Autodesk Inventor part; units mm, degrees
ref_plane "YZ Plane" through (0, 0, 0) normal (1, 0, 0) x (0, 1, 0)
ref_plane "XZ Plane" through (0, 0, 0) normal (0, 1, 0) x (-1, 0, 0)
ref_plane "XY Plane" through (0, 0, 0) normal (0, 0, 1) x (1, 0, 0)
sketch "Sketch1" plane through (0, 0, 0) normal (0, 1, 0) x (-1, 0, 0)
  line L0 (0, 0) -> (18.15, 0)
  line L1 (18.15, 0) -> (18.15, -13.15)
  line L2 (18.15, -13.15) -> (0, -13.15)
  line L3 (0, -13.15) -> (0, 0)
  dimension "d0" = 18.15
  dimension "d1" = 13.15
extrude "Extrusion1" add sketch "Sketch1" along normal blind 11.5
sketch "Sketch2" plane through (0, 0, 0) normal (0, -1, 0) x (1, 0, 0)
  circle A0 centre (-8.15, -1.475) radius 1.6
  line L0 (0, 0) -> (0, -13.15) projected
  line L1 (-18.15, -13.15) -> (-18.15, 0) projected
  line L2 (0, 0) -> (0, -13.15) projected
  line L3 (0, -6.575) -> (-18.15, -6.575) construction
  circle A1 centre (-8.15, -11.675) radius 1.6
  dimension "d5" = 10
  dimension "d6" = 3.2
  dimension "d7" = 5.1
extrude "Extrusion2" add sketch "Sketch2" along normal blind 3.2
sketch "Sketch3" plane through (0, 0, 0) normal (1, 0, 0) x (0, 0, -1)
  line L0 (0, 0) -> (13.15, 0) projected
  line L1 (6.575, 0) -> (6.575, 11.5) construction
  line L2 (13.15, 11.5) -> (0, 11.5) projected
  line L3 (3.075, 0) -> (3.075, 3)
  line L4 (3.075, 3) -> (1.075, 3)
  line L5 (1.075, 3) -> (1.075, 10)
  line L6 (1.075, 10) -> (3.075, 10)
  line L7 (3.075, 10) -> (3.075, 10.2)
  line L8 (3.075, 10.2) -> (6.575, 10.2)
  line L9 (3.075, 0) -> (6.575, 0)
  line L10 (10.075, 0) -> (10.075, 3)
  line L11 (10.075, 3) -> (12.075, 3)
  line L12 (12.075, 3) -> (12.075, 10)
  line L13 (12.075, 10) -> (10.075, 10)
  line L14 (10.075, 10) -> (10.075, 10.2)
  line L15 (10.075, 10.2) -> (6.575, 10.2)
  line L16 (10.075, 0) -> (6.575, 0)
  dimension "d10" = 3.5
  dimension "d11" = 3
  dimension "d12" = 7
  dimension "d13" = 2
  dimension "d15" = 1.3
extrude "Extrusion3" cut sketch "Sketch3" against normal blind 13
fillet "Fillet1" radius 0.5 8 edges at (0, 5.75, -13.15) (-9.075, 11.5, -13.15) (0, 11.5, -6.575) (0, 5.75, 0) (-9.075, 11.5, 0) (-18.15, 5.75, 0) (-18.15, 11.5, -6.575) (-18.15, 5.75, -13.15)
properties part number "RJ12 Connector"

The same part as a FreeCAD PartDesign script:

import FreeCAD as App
import Part
import Sketcher
from FreeCAD import Vector


def edges_at(feature, points):
    """Names of the edges that pass closest to the given points."""
    edges = feature.Shape.Edges
    near = lambda p: min(range(len(edges)), key=lambda i: edges[i].distToShape(Part.Vertex(*p))[0])
    return sorted({f"Edge{near(p) + 1}" for p in points})


def add_polygon(sketch, points):
    """Adds a closed chain of lines whose ends are joined by coincident constraints."""
    first, n = sketch.GeometryCount, len(points)
    for a, b in zip(points, points[1:] + points[:1]):
        sketch.addGeometry(Part.LineSegment(App.Vector(*a, 0), App.Vector(*b, 0)), False)
    for i in range(n):
        sketch.addConstraint(Sketcher.Constraint("Coincident", first + i, 2, first + (i + 1) % n, 1))

doc = App.newDocument("Part")
body = doc.addObject("PartDesign::Body", "Body")

# Sketch on XZ plane
sketch1 = body.newObject("Sketcher::SketchObject", "Sketch")
sketch1.AttachmentSupport = (doc.getObject("XZ_Plane"), [""])
sketch1.MapMode = "FlatFace"
add_polygon(sketch1, [(-18, 0), (0, 0), (0, -13), (-18, -13)])  # lines 0-3
sketch1.addConstraint([
    Sketcher.Constraint("Horizontal", 0),
    Sketcher.Constraint("Vertical", 1),
    Sketcher.Constraint("Horizontal", 2),
    Sketcher.Constraint("Vertical", 3),
    Sketcher.Constraint("Coincident", 0, 2, -1, 1),
    Sketcher.Constraint("DistanceX", 0, 1, 0, 2, 18.15),
    Sketcher.Constraint("DistanceY", 1, 2, 1, 1, 13.15),
])
pad1 = body.newObject("PartDesign::Pad", "Pad")
pad1.Profile = sketch1
pad1.Length = 11.5
pad1.Reversed = True

# Sketch on XZ plane
sketch2 = body.newObject("Sketcher::SketchObject", "Sketch001")
sketch2.AttachmentSupport = (doc.getObject("XZ_Plane"), [""])
sketch2.MapMode = "FlatFace"
sketch2.addGeometry([
    Part.Circle(Vector(-8.2, -1.5, 0), Vector(0, 0, 1), 1.6),
    Part.Circle(Vector(-8.2, -11.7, 0), Vector(0, 0, 1), 1.6),
], False)
sketch2.addConstraint([
    Sketcher.Constraint("Equal", 0, 1),
    Sketcher.Constraint("Vertical", 0, 3, 1, 3),
    Sketcher.Constraint("Diameter", 0, 3.2),
    Sketcher.Constraint("DistanceY", 1, 3, 0, 3, 10.2),
    Sketcher.Constraint("DistanceX", 0, 3, -1, 1, 8.15),
    Sketcher.Constraint("DistanceY", 0, 3, -1, 1, 1.475),
])
pad2 = body.newObject("PartDesign::Pad", "Pad001")
pad2.Profile = sketch2
pad2.Length = 3.2

# Sketch on YZ plane
sketch3 = body.newObject("Sketcher::SketchObject", "Sketch002")
sketch3.AttachmentSupport = (doc.getObject("YZ_Plane"), [""])
sketch3.MapMode = "FlatFace"
add_polygon(sketch3, [(3, -3.08), (0, -3.08), (0, -10.07), (3, -10.07), (3, -12.07), (10, -12.07), (10, -10.07), (10.2, -10.07), (10.2, -3.08), (10, -3.08), (10, -1.07), (3, -1.07)])  # lines 0-11
sketch3.addConstraint([
    Sketcher.Constraint("Horizontal", 0),
    Sketcher.Constraint("Vertical", 1),
    Sketcher.Constraint("Horizontal", 2),
    Sketcher.Constraint("Vertical", 3),
    Sketcher.Constraint("Horizontal", 4),
    Sketcher.Constraint("Vertical", 5),
    Sketcher.Constraint("Horizontal", 6),
    Sketcher.Constraint("Vertical", 7),
    Sketcher.Constraint("Horizontal", 8),
    Sketcher.Constraint("Vertical", 9),
    Sketcher.Constraint("Horizontal", 10),
    Sketcher.Constraint("Vertical", 11),
    Sketcher.Constraint("PointOnObject", 0, 2, -2),
    Sketcher.Constraint("Horizontal", 2, 2, 5, 2),
    Sketcher.Constraint("Horizontal", 0, 2, 7, 2),
    Sketcher.Constraint("Vertical", 5, 2, 8, 2),
    Sketcher.Constraint("Vertical", 3, 2, 10, 2),
    Sketcher.Constraint("Equal", 10, 1),
    Sketcher.Constraint("Equal", 5, 9),
    Sketcher.Constraint("DistanceX", 0, 2, 0, 1, 3.0),
    Sketcher.Constraint("DistanceX", 4, 1, 4, 2, 7.0),
    Sketcher.Constraint("DistanceY", 3, 2, 3, 1, 2.0),
    Sketcher.Constraint("DistanceX", 6, 1, 6, 2, 0.2),
    Sketcher.Constraint("DistanceY", 0, 2, -1, 1, 3.075),
])
pocket1 = body.newObject("PartDesign::Pocket", "Pocket")
pocket1.Profile = sketch3
pocket1.Length = 13
doc.recompute()

fillet = body.newObject("PartDesign::Fillet", "Fillet")
fillet.Base = (pocket1, edges_at(pocket1, [
    (0, 5.75, -13.15),
    (-9.075, 11.5, -13.15),
    (0, 11.5, -6.575),
    (0, 5.75, 0),
    (-9.075, 11.5, 0),
    (-18.15, 5.75, 0),
    (-18.15, 11.5, -6.575),
    (-18.15, 5.75, -13.15),
]))
fillet.Radius = 0.5

doc.recompute()
